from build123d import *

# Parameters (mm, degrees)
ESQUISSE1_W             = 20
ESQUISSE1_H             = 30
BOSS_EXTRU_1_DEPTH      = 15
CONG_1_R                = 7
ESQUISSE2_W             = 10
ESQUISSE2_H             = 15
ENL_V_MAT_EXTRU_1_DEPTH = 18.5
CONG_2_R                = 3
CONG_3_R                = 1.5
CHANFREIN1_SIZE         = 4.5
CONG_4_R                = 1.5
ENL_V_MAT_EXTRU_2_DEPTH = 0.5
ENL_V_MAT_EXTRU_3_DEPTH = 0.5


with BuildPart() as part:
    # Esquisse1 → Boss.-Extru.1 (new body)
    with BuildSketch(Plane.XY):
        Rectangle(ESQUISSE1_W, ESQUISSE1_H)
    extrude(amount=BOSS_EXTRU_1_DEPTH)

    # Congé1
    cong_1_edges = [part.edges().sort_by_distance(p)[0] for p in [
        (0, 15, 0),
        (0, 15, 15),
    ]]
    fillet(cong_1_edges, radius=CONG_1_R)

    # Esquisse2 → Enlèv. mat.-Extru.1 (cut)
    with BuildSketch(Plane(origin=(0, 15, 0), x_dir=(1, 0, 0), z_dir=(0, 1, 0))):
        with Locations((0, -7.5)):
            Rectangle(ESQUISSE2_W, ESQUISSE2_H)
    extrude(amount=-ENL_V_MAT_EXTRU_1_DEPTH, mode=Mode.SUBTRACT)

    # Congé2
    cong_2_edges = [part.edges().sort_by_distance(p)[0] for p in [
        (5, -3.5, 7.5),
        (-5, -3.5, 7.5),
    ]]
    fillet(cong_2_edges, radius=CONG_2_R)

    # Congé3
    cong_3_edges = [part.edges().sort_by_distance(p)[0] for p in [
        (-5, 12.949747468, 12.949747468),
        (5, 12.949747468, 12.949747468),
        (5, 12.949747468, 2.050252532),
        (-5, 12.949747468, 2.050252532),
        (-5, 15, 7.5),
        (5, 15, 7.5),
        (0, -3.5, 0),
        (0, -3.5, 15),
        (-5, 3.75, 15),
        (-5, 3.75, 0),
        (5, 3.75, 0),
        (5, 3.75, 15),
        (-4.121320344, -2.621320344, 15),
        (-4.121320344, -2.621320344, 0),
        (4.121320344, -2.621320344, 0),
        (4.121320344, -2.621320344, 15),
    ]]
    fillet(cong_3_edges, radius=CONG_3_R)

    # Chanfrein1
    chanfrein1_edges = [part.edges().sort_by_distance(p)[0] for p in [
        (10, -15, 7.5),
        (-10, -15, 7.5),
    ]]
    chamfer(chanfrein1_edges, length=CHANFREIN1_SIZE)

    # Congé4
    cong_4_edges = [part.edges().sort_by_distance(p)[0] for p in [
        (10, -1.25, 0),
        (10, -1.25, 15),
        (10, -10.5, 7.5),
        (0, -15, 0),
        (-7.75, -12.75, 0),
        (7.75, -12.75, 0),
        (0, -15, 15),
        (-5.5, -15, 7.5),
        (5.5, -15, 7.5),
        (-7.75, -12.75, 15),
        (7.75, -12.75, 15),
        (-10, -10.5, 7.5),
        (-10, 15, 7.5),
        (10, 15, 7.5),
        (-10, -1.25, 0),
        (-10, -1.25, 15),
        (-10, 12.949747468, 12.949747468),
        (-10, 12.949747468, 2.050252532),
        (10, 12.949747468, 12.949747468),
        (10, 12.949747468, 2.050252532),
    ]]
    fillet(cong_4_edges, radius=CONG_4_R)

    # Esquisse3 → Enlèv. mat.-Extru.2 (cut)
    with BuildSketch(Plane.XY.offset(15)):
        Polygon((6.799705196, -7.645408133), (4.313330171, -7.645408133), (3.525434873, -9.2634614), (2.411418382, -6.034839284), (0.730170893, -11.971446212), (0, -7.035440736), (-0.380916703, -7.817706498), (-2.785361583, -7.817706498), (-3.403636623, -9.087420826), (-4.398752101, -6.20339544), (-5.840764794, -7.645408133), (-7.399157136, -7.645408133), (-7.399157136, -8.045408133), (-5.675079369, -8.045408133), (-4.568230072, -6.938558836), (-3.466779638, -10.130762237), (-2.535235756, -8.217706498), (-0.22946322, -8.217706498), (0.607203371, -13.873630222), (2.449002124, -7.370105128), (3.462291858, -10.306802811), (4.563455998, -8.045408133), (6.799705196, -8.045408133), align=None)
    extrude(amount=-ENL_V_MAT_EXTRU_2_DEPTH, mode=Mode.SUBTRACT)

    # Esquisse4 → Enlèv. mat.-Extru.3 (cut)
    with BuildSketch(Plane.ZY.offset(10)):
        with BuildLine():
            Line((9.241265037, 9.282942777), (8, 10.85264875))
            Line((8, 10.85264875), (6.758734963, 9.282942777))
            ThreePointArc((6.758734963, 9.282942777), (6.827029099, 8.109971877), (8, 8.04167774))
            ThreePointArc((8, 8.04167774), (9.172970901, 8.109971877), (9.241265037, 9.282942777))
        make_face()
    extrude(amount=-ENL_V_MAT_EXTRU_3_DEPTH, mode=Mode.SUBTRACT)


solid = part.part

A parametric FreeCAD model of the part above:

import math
import FreeCAD as App
import Part
import Sketcher
from FreeCAD import Vector
Q = App.Units.Quantity


def edges_at(feature, points):
    """Names of the edges that pass closest to the given points."""
    edges = feature.Shape.Edges
    near = lambda p: min(range(len(edges)), key=lambda i: edges[i].distToShape(Part.Vertex(*p))[0])
    return sorted({f"Edge{near(p) + 1}" for p in points})


def add_polygon(sketch, points):
    """Adds a closed chain of lines whose ends are joined by coincident constraints."""
    first, n = sketch.GeometryCount, len(points)
    for a, b in zip(points, points[1:] + points[:1]):
        sketch.addGeometry(Part.LineSegment(App.Vector(*a, 0), App.Vector(*b, 0)), False)
    for i in range(n):
        sketch.addConstraint(Sketcher.Constraint("Coincident", first + i, 2, first + (i + 1) % n, 1))

doc = App.newDocument("Part")
body = doc.addObject("PartDesign::Body", "Body")

sketch1 = body.newObject("Sketcher::SketchObject", "Sketch")
sketch1.AttachmentSupport = (doc.getObject("XY_Plane"), [""])
sketch1.MapMode = "FlatFace"
add_polygon(sketch1, [(-10, 15), (-10, -15), (10, -15), (10, 15)])
sketch1.addConstraint([
    Sketcher.Constraint("Vertical", 0),
    Sketcher.Constraint("Horizontal", 1),
    Sketcher.Constraint("Vertical", 2),
    Sketcher.Constraint("Horizontal", 3),
    Sketcher.Constraint("Symmetric", 0, 2, 2, 2, -1, 1),
    Sketcher.Constraint("DistanceX", 1, 1, 1, 2, 20.0),
    Sketcher.Constraint("DistanceY", 0, 2, 0, 1, 30.0),
])
pad1 = body.newObject("PartDesign::Pad", "Pad")
pad1.Profile = sketch1
pad1.Length = 15
doc.recompute()

fillet = body.newObject("PartDesign::Fillet", "Fillet")
fillet.Base = (pad1, edges_at(pad1, [(0, 15, 0), (0, 15, 15)]))
fillet.Radius = 7

sketch2 = body.newObject("Sketcher::SketchObject", "Sketch001")
sketch2.AttachmentSupport = (doc.getObject("XZ_Plane"), [""])
sketch2.MapMode = "FlatFace"
sketch2.AttachmentOffset = App.Placement(Vector(0, 0, -15), App.Rotation())
add_polygon(sketch2, [(-5, 0), (-5, 15), (5, 15), (5, 0)])
sketch2.addConstraint([
    Sketcher.Constraint("Vertical", 0),
    Sketcher.Constraint("Horizontal", 1),
    Sketcher.Constraint("Vertical", 2),
    Sketcher.Constraint("Horizontal", 3),
    Sketcher.Constraint("Symmetric", 2, 2, 3, 2, -1, 1),
    Sketcher.Constraint("DistanceX", 1, 1, 1, 2, 10.0),
    Sketcher.Constraint("DistanceY", 0, 1, 0, 2, 15.0),
])
pocket1 = body.newObject("PartDesign::Pocket", "Pocket")
pocket1.Profile = sketch2
pocket1.Length = 18.5
pocket1.Reversed = True
doc.recompute()

fillet2 = body.newObject("PartDesign::Fillet", "Fillet001")
fillet2.Base = (pocket1, edges_at(pocket1, [(5, -3.5, 7.5), (-5, -3.5, 7.5)]))
fillet2.Radius = 3
doc.recompute()

fillet3 = body.newObject("PartDesign::Fillet", "Fillet002")
fillet3.Base = (fillet2, edges_at(fillet2, [
    (-5, 12.95, 12.95),
    (5, 12.95, 12.95),
    (5, 12.95, 2.05),
    (-5, 12.95, 2.05),
    (-5, 15, 7.5),
    (5, 15, 7.5),
    (0, -3.5, 0),
    (0, -3.5, 15),
    (-5, 3.75, 15),
    (-5, 3.75, 0),
    (5, 3.75, 0),
    (5, 3.75, 15),
    (-4.121, -2.621, 15),
    (-4.121, -2.621, 0),
    (4.121, -2.621, 0),
    (4.121, -2.621, 15),
]))
fillet3.Radius = 1.5
doc.recompute()

chamfer = body.newObject("PartDesign::Chamfer", "Chamfer")
chamfer.Base = (fillet3, edges_at(fillet3, [(10, -15, 7.5), (-10, -15, 7.5)]))
chamfer.Size = 4.5
doc.recompute()

fillet4 = body.newObject("PartDesign::Fillet", "Fillet003")
fillet4.Base = (chamfer, edges_at(chamfer, [
    (10, -1.25, 0),
    (10, -1.25, 15),
    (10, -10.5, 7.5),
    (0, -15, 0),
    (-7.75, -12.75, 0),
    (7.75, -12.75, 0),
    (0, -15, 15),
    (-5.5, -15, 7.5),
    (5.5, -15, 7.5),
    (-7.75, -12.75, 15),
    (7.75, -12.75, 15),
    (-10, -10.5, 7.5),
    (-10, 15, 7.5),
    (10, 15, 7.5),
    (-10, -1.25, 0),
    (-10, -1.25, 15),
    (-10, 12.95, 12.95),
    (-10, 12.95, 2.05),
    (10, 12.95, 12.95),
    (10, 12.95, 2.05),
]))
fillet4.Radius = 1.5

sketch3 = body.newObject("Sketcher::SketchObject", "Sketch002")
sketch3.AttachmentSupport = (doc.getObject("XY_Plane"), [""])
sketch3.MapMode = "FlatFace"
sketch3.AttachmentOffset = App.Placement(Vector(0, 0, 15), App.Rotation())
add_polygon(sketch3, [(6.8, -7.65), (4.31, -7.65), (3.53, -9.26), (2.41, -6.03), (0.73, -11.97), (0, -7.04), (-0.38, -7.82), (-2.79, -7.82), (-3.4, -9.09), (-4.4, -6.2), (-5.84, -7.65), (-7.4, -7.65), (-7.4, -8.05), (-5.68, -8.05), (-4.57, -6.94), (-3.47, -10.13), (-2.54, -8.22), (-0.23, -8.22), (0.61, -13.87), (2.45, -7.37), (3.46, -10.31), (4.56, -8.05), (6.8, -8.05)])
sketch3.addConstraint([
    Sketcher.Constraint("Horizontal", 0),
    Sketcher.Constraint("Horizontal", 6),
    Sketcher.Constraint("Horizontal", 10),
    Sketcher.Constraint("Vertical", 11),
    Sketcher.Constraint("Horizontal", 12),
    Sketcher.Constraint("Horizontal", 16),
    Sketcher.Constraint("Horizontal", 21),
    Sketcher.Constraint("Vertical", 22),
    Sketcher.Constraint("PointOnObject", 4, 2, -2),
    Sketcher.Constraint("Parallel", 1, 5),
    Sketcher.Constraint("Parallel", 5, 7),
    Sketcher.Constraint("Parallel", 2, 8),
    Sketcher.Constraint("Parallel", 9, 13),
    Sketcher.Constraint("Parallel", 8, 14),
    Sketcher.Constraint("Parallel", 7, 15),
    Sketcher.Constraint("Parallel", 4, 17),
    Sketcher.Constraint("Parallel", 3, 18),
    Sketcher.Constraint("Parallel", 14, 19),
    Sketcher.Constraint("Parallel", 15, 20),
    Sketcher.Constraint("Horizontal", 0, 2, 9, 2),
    Sketcher.Constraint("Horizontal", 12, 2, 20, 2),
    Sketcher.Constraint("Angle", 9, Q("-135 deg")),
    Sketcher.Constraint("DistanceY", 11, 2, 11, 1, 0.4),
    Sketcher.Constraint("DistanceY", 15, 2, 6, 2, 0.4),
    Sketcher.Constraint("DistanceX", 21, 1, 21, 2, 2.236249),
    Sketcher.Constraint("DistanceY", 4, 2, 2, 2, 1.000601),
    Sketcher.Constraint("DistanceY", 5, 2, 0, 2, 0.172298),
    Sketcher.Constraint("DistanceX", 12, 2, 14, 2, 2.2083),
    Sketcher.Constraint("DistanceX", 7, 2, 15, 2, 0.868401),
    Sketcher.Constraint("DistanceX", 6, 2, 16, 2, 2.555898),
    Sketcher.Constraint("DistanceY", 16, 2, 18, 2, 0.847601),
    Sketcher.Constraint("Distance", 2, 3.415411),
    Sketcher.Constraint("Distance", 3, 6.170081),
    Sketcher.Constraint("Distance", 4, 4.989719),
    Sketcher.Constraint("Distance", 5, 0.870079),
    Sketcher.Constraint("Distance", 8, 3.050878),
    Sketcher.Constraint("Distance", 13, 1.565321),
    Sketcher.Constraint("Distance", 17, 5.717472),
    Sketcher.Constraint("DistanceX", 0, 2, 0, 1, 2.486375),
    Sketcher.Constraint("DistanceX", 6, 2, 6, 1, 2.404445),
    Sketcher.Constraint("DistanceX", 10, 2, 10, 1, 1.558392),
    Sketcher.Constraint("DistanceX", 12, 1, 12, 2, 1.724078),
    Sketcher.Constraint("DistanceX", 16, 1, 16, 2, 2.305773),
    Sketcher.Constraint("DistanceX", -1, 1, 0, 2, 4.31333),
    Sketcher.Constraint("DistanceY", 0, 2, -1, 1, 7.645408),
    Sketcher.Constraint("DistanceY", 1, 2, -1, 1, 9.263461),
])
pocket2 = body.newObject("PartDesign::Pocket", "Pocket001")
pocket2.Profile = sketch3
pocket2.Length = 0.5

sketch4 = body.newObject("Sketcher::SketchObject", "Sketch003")
sketch4.AttachmentSupport = (doc.getObject("YZ_Plane"), [""])
sketch4.MapMode = "FlatFace"
sketch4.AttachmentOffset = App.Placement(Vector(0, 0, -10), App.Rotation())
sketch4.addGeometry([
    Part.LineSegment(Vector(9.3, 9.2, 0), Vector(10.9, 8, 0)),
    Part.LineSegment(Vector(10.9, 8, 0), Vector(9.3, 6.8, 0)),
    Part.ArcOfCircle(Part.Circle(Vector(8.7, 7.5, 0), Vector(0, 0, 1), 0.9), math.radians(142), math.radians(308)),
    Part.ArcOfCircle(Part.Circle(Vector(8.7, 8.5, 0), Vector(0, 0, 1), 0.9), math.radians(52), math.radians(218)),
], False)
sketch4.addConstraint([
    Sketcher.Constraint("Coincident", 0, 2, 1, 1),
    Sketcher.Constraint("Tangent", 1, 2, 2, 2),
    Sketcher.Constraint("Coincident", 2, 1, 3, 2),
    Sketcher.Constraint("Tangent", 3, 1, 0, 1),
    Sketcher.Constraint("Equal", 2, 3),
    Sketcher.Constraint("Horizontal", 0, 2, 2, 1),
    Sketcher.Constraint("Vertical", 2, 3, 3, 3),
    Sketcher.Constraint("DistanceY", -1, 1, 0, 2, 8.0),
    Sketcher.Constraint("Radius", 2, 0.883678),
    Sketcher.Constraint("Distance", 0, 2.001179),
    Sketcher.Constraint("DistanceX", -1, 1, 0, 2, 10.852649),
    Sketcher.Constraint("DistanceY", 1, 2, 2, 3, 0.693149),
])
pocket3 = body.newObject("PartDesign::Pocket", "Pocket002")
pocket3.Profile = sketch4
pocket3.Length = 0.5
pocket3.Reversed = True

doc.recompute()
